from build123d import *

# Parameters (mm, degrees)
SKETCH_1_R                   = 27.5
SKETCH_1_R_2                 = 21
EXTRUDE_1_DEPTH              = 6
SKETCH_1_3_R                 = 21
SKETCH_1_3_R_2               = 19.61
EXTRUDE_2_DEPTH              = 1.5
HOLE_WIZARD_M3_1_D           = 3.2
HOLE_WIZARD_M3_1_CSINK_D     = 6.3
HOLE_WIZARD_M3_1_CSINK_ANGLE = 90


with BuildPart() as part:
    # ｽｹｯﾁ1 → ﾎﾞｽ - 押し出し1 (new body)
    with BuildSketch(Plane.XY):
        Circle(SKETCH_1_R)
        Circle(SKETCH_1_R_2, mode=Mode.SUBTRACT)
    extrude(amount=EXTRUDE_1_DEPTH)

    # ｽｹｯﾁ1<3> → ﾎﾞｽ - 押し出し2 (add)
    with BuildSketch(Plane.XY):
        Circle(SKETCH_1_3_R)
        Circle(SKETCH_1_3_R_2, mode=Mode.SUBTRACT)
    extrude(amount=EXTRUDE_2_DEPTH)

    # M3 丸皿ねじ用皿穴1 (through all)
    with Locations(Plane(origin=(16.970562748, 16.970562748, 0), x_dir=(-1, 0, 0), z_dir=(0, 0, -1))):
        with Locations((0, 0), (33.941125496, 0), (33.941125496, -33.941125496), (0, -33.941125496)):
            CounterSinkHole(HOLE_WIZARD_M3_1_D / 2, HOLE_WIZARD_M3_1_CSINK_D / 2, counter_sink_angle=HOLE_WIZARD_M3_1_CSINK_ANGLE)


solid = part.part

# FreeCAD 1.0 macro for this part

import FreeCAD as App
import Part
import Sketcher
from FreeCAD import Vector

doc = App.newDocument("Part")
body = doc.addObject("PartDesign::Body", "Body")

# Sketch on XY plane
sketch1 = body.newObject("Sketcher::SketchObject", "Sketch")
sketch1.AttachmentSupport = (doc.getObject("XY_Plane"), [""])
sketch1.MapMode = "FlatFace"
sketch1.addGeometry([
    Part.Circle(Vector(0, 0, 0), Vector(0, 0, 1), 28),
    Part.Circle(Vector(0, 0, 0), Vector(0, 0, 1), 21),
], False)
sketch1.addConstraint([
    Sketcher.Constraint("Coincident", 0, 3, -1, 1),
    Sketcher.Constraint("Coincident", 1, 3, -1, 1),
    Sketcher.Constraint("Diameter", 0, 55.0),
    Sketcher.Constraint("Diameter", 1, 42.0),
])
pad1 = body.newObject("PartDesign::Pad", "Pad")
pad1.Profile = sketch1
pad1.Length = 6

# Sketch on XY plane
sketch2 = body.newObject("Sketcher::SketchObject", "Sketch001")
sketch2.AttachmentSupport = (doc.getObject("XY_Plane"), [""])
sketch2.MapMode = "FlatFace"
sketch2.addGeometry([
    Part.Circle(Vector(0, 0, 0), Vector(0, 0, 1), 21),
    Part.Circle(Vector(0, 0, 0), Vector(0, 0, 1), 20),
], False)
sketch2.addConstraint([
    Sketcher.Constraint("Coincident", 0, 3, -1, 1),
    Sketcher.Constraint("Coincident", 1, 3, -1, 1),
    Sketcher.Constraint("Diameter", 0, 42.0),
    Sketcher.Constraint("Diameter", 1, 39.22),
])
pad2 = body.newObject("PartDesign::Pad", "Pad001")
pad2.Profile = sketch2
pad2.Length = 1.5

# Sketch on XY plane
sketch3 = body.newObject("Sketcher::SketchObject", "Sketch002")
sketch3.AttachmentSupport = (doc.getObject("XY_Plane"), [""])
sketch3.MapMode = "FlatFace"
sketch3.addGeometry([
    Part.Circle(Vector(17, 17, 0), Vector(0, 0, 1), 1.6),
    Part.Circle(Vector(-17, 17, 0), Vector(0, 0, 1), 1.6),
    Part.Circle(Vector(-17, -17, 0), Vector(0, 0, 1), 1.6),
    Part.Circle(Vector(17, -17, 0), Vector(0, 0, 1), 1.6),
], False)
sketch3.addConstraint([
    Sketcher.Constraint("Equal", 0, 1),
    Sketcher.Constraint("Equal", 1, 2),
    Sketcher.Constraint("Equal", 2, 3),
    Sketcher.Constraint("Symmetric", 0, 3, 2, 3, -1, 1),
    Sketcher.Constraint("Symmetric", 1, 3, 3, 3, -1, 1),
    Sketcher.Constraint("Symmetric", 0, 3, 1, 3, -2),
    Sketcher.Constraint("Diameter", 0, 3.2),
    Sketcher.Constraint("DistanceX", -1, 1, 0, 3, 16.970563),
    Sketcher.Constraint("DistanceY", -1, 1, 0, 3, 16.970563),
])
doc.recompute()
hole = body.newObject("PartDesign::Hole", "Hole")
hole.Profile = sketch3
hole.ThreadType = "None"
hole.Diameter = 3.2
hole.DepthType = "ThroughAll"
hole.HoleCutType = "Countersink"
hole.HoleCutDiameter = 6.3
hole.HoleCutCountersinkAngle = 90
hole.Reversed = True

doc.recompute()
